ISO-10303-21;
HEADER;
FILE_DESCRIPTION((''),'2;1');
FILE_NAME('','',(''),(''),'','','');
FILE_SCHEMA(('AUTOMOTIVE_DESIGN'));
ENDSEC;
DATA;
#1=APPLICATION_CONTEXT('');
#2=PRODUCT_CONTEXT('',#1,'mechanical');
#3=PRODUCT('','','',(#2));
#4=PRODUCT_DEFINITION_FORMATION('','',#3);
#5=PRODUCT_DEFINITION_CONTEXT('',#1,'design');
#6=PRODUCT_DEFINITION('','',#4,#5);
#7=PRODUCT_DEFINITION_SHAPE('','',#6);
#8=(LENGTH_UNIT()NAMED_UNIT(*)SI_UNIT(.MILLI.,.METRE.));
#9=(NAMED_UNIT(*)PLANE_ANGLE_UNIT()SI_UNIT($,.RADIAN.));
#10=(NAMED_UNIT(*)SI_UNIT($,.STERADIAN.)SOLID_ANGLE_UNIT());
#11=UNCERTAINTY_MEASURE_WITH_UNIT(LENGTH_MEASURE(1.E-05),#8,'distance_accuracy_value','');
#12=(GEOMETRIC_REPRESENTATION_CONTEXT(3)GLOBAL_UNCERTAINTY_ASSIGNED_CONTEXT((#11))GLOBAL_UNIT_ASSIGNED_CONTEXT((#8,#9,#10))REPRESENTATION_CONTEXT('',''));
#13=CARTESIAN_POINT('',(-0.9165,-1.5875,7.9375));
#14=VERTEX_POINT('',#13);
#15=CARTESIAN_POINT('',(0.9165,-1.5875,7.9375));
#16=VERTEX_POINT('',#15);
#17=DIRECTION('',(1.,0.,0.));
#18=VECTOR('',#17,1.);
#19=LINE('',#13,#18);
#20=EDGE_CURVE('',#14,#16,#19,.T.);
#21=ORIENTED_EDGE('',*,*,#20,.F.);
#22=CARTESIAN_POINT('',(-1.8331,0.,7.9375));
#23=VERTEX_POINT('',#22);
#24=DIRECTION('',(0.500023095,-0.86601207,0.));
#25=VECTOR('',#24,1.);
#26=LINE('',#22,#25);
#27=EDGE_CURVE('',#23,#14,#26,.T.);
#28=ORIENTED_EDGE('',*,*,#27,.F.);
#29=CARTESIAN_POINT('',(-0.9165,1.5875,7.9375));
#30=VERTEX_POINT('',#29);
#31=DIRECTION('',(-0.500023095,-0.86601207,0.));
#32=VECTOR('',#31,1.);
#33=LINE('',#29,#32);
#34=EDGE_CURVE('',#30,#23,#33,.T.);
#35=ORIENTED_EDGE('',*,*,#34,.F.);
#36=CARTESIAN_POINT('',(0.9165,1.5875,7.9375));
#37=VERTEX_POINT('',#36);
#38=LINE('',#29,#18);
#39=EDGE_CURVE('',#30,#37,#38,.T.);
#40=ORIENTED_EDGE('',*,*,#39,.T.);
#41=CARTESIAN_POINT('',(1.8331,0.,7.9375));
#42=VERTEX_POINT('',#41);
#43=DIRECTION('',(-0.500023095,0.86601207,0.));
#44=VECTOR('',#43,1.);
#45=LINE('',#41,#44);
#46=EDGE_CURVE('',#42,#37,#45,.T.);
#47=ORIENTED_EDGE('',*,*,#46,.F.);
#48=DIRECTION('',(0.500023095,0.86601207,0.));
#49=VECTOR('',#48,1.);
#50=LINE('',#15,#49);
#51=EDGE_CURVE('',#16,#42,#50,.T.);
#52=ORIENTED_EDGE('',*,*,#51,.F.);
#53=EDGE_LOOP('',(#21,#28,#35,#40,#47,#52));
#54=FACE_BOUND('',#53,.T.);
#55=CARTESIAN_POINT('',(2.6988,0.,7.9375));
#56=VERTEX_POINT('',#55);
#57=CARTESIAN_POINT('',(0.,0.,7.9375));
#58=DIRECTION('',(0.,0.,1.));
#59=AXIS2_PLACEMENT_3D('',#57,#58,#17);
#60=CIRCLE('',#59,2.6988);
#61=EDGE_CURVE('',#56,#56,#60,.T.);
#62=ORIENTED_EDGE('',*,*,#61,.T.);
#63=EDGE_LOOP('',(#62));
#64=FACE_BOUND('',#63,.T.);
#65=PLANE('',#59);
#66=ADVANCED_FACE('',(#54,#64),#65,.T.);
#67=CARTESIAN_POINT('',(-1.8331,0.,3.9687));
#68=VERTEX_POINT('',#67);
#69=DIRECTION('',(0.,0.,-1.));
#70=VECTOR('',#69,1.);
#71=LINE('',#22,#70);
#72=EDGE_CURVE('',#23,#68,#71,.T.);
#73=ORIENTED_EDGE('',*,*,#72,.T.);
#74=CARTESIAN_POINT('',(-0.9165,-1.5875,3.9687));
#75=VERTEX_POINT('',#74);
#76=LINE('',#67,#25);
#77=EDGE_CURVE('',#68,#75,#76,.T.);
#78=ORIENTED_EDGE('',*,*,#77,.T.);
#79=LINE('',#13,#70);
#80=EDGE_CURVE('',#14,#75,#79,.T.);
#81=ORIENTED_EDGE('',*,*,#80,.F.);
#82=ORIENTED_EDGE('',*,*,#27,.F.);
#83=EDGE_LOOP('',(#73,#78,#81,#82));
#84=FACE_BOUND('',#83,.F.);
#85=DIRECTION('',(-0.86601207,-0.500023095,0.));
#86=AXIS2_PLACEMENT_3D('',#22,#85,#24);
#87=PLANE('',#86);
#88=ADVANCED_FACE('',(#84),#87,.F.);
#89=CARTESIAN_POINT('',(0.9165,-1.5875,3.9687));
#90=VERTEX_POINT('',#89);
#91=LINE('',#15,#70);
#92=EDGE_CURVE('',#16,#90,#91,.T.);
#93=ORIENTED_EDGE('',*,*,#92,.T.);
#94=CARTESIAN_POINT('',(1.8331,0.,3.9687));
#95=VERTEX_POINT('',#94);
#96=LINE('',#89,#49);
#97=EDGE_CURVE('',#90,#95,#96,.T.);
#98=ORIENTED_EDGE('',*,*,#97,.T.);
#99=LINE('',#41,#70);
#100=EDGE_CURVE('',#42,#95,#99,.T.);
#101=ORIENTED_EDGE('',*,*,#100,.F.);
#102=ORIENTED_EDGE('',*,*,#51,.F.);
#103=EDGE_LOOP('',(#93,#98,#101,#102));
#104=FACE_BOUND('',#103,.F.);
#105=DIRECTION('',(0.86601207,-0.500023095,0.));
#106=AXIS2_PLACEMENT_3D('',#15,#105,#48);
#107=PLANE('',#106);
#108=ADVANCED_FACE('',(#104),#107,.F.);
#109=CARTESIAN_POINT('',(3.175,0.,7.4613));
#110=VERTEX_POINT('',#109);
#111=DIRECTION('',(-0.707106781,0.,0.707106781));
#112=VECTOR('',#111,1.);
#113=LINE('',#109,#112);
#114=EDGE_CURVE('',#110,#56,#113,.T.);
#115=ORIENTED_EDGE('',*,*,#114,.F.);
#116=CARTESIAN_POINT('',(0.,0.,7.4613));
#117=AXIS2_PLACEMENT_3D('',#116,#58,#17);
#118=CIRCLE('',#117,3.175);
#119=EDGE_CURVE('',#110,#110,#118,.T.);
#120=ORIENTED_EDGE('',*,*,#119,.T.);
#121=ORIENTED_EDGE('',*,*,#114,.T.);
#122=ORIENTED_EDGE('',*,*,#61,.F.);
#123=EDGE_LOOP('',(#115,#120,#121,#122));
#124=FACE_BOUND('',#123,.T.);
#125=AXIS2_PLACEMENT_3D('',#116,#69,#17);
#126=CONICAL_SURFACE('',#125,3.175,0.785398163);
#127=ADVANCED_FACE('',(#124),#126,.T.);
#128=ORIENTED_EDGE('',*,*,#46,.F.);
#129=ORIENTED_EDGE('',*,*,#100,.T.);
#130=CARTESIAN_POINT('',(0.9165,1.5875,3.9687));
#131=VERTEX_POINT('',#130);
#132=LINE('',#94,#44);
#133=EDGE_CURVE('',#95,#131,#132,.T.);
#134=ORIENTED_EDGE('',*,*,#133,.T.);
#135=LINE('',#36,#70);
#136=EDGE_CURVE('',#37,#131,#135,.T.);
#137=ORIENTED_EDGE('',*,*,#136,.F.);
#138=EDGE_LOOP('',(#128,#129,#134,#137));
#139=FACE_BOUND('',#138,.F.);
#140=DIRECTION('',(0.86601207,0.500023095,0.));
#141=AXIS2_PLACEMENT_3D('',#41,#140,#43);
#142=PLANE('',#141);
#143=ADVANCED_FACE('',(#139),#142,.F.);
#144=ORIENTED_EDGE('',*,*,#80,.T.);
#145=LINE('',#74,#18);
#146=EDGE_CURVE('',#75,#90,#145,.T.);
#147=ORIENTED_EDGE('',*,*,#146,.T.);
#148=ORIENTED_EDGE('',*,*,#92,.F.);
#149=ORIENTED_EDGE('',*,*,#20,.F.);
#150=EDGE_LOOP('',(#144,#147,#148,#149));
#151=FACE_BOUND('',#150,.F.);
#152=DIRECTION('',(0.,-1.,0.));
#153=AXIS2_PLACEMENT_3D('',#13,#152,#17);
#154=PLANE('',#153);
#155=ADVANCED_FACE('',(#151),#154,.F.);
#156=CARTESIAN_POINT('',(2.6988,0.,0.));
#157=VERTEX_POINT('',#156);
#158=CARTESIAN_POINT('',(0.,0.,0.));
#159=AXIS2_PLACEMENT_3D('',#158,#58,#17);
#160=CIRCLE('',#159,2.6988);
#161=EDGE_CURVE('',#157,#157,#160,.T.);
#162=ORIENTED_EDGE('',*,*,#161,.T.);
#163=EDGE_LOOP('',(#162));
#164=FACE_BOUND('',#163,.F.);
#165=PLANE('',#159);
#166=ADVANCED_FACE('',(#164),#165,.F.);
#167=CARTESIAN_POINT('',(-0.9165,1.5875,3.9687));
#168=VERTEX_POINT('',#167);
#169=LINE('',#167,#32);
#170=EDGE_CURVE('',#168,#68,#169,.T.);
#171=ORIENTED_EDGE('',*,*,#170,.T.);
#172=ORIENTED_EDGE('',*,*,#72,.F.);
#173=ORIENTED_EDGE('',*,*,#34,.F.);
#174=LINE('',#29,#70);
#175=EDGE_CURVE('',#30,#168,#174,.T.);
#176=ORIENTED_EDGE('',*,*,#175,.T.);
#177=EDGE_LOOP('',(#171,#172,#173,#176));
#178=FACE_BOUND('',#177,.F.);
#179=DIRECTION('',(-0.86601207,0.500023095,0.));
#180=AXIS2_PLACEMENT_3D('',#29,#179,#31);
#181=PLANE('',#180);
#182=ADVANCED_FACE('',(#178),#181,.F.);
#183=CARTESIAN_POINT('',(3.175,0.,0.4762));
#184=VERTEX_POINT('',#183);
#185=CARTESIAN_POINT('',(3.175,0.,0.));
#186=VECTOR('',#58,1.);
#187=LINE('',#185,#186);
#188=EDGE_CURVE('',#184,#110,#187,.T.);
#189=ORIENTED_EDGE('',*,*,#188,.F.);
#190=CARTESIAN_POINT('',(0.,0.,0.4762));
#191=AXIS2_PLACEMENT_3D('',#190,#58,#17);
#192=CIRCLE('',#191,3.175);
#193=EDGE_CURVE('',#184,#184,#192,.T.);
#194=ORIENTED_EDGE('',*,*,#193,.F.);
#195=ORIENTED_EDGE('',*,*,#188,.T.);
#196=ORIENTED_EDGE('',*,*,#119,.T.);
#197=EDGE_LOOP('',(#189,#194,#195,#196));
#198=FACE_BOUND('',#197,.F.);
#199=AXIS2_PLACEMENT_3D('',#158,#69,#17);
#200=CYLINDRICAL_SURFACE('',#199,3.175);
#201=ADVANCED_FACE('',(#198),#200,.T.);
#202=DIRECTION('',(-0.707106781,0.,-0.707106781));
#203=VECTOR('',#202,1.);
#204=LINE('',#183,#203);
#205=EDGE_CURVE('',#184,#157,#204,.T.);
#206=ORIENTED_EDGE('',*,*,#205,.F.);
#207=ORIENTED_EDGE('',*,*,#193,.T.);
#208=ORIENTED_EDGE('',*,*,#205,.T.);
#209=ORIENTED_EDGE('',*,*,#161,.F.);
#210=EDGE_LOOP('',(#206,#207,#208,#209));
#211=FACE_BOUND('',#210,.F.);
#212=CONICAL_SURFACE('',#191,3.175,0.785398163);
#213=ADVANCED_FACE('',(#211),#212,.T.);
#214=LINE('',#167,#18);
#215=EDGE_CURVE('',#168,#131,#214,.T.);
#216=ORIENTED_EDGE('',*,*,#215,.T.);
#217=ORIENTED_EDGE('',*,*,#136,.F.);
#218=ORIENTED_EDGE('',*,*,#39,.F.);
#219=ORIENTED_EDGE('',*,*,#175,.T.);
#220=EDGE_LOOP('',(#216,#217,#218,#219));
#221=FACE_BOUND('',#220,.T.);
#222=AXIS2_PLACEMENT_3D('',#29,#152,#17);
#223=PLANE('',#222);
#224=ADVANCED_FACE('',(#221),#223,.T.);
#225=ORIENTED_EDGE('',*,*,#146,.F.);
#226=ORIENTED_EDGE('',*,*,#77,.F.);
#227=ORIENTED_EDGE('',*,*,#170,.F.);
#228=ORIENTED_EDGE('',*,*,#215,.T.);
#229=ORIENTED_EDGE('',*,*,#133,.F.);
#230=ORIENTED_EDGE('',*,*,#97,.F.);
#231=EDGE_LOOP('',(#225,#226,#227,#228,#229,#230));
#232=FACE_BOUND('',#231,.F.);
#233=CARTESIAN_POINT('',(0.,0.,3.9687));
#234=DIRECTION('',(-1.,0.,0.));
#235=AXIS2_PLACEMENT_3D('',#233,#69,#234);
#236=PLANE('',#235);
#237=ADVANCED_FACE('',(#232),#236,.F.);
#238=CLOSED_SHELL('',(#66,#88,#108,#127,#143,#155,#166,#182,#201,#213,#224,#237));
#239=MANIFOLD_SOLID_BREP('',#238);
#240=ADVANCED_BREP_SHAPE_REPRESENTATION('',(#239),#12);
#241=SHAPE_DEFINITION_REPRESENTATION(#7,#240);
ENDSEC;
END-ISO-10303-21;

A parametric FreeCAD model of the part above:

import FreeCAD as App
import Part
import Sketcher
from FreeCAD import Vector
Q = App.Units.Quantity


def edges_at(feature, points):
    """Names of the edges that pass closest to the given points."""
    edges = feature.Shape.Edges
    near = lambda p: min(range(len(edges)), key=lambda i: edges[i].distToShape(Part.Vertex(*p))[0])
    return sorted({f"Edge{near(p) + 1}" for p in points})


def add_polygon(sketch, points):
    """Adds a closed chain of lines whose ends are joined by coincident constraints."""
    first, n = sketch.GeometryCount, len(points)
    for a, b in zip(points, points[1:] + points[:1]):
        sketch.addGeometry(Part.LineSegment(App.Vector(*a, 0), App.Vector(*b, 0)), False)
    for i in range(n):
        sketch.addConstraint(Sketcher.Constraint("Coincident", first + i, 2, first + (i + 1) % n, 1))

doc = App.newDocument("Part")
params = doc.addObject("Spreadsheet::Sheet", "Params")
for row, (alias, value) in enumerate([
    ("sketch1_diameter", "0.25 in"),
    ("pad1_length", "0.3125 in"),
    ("chamfer_size", "0.4762 mm"),
    ("pocket1_length", "0.156252 in"),
], start=1):
    params.set(f"A{row}", alias)
    params.set(f"B{row}", "=" + value)
    params.setAlias(f"B{row}", alias)

body = doc.addObject("PartDesign::Body", "Body")

# Sketch on XY plane
sketch1 = doc.addObject("Sketcher::SketchObject", "Sketch")
body.addObject(sketch1)
sketch1.AttachmentSupport = (doc.XY_Plane, [""])
sketch1.MapMode = "FlatFace"
sketch1.addGeometry(Part.Circle(Vector(0, 0, 0), Vector(0, 0, 1), 3.175), False)
sketch1.addConstraint([
    Sketcher.Constraint("Coincident", 0, 3, -1, 1),
    Sketcher.Constraint("Diameter", 0, Q("0.25 in")),
])
sketch1.setExpression("Constraints[1]", "Params.sketch1_diameter")
pad1 = doc.addObject("PartDesign::Pad", "Pad")
body.addObject(pad1)
pad1.Profile = sketch1
pad1.setExpression("Length", "Params.pad1_length")
doc.recompute()

chamfer = doc.addObject("PartDesign::Chamfer", "Chamfer")
body.addObject(chamfer)
chamfer.Base = (pad1, edges_at(pad1, [(-3.175, 0, 0), (-3.175, 0, 7.938)]))
chamfer.setExpression("Size", "Params.chamfer_size")

# Sketch on XY plane
sketch2 = doc.addObject("Sketcher::SketchObject", "Sketch001")
body.addObject(sketch2)
sketch2.AttachmentSupport = (doc.XY_Plane, [""])
sketch2.MapMode = "FlatFace"
sketch2.AttachmentOffset = App.Placement(Vector(0, 0, 0.3125 * 25.4), App.Rotation())
add_polygon(sketch2, [(0.9165, 1.5875), (-0.9165, 1.5875), (-1.8331, 0), (-0.9165, -1.5875), (0.9165, -1.5875), (1.8331, 0)])  # lines 0-5
sketch2.addConstraint([
    Sketcher.Constraint("Horizontal", 0),
    Sketcher.Constraint("Horizontal", 3),
    Sketcher.Constraint("Symmetric", 0, 2, 3, 2, -1, 1),
    Sketcher.Constraint("Symmetric", 1, 2, 4, 2, -1, 1),
    Sketcher.Constraint("PointOnObject", 1, 2, -1),
    Sketcher.Constraint("Parallel", 2, 5),
    Sketcher.Constraint("Vertical", 0, 2, 2, 2),
    Sketcher.Constraint("DistanceY", -1, 1, 0, 2, Q("0.0625 in")),
    Sketcher.Constraint("DistanceX", 0, 2, 0, 1, Q("1.833 mm")),
    Sketcher.Constraint("Distance", 1, Q("1.833 mm")),
])
pocket1 = doc.addObject("PartDesign::Pocket", "Pocket")
body.addObject(pocket1)
pocket1.Profile = sketch2
pocket1.setExpression("Length", "Params.pocket1_length")

doc.recompute()
